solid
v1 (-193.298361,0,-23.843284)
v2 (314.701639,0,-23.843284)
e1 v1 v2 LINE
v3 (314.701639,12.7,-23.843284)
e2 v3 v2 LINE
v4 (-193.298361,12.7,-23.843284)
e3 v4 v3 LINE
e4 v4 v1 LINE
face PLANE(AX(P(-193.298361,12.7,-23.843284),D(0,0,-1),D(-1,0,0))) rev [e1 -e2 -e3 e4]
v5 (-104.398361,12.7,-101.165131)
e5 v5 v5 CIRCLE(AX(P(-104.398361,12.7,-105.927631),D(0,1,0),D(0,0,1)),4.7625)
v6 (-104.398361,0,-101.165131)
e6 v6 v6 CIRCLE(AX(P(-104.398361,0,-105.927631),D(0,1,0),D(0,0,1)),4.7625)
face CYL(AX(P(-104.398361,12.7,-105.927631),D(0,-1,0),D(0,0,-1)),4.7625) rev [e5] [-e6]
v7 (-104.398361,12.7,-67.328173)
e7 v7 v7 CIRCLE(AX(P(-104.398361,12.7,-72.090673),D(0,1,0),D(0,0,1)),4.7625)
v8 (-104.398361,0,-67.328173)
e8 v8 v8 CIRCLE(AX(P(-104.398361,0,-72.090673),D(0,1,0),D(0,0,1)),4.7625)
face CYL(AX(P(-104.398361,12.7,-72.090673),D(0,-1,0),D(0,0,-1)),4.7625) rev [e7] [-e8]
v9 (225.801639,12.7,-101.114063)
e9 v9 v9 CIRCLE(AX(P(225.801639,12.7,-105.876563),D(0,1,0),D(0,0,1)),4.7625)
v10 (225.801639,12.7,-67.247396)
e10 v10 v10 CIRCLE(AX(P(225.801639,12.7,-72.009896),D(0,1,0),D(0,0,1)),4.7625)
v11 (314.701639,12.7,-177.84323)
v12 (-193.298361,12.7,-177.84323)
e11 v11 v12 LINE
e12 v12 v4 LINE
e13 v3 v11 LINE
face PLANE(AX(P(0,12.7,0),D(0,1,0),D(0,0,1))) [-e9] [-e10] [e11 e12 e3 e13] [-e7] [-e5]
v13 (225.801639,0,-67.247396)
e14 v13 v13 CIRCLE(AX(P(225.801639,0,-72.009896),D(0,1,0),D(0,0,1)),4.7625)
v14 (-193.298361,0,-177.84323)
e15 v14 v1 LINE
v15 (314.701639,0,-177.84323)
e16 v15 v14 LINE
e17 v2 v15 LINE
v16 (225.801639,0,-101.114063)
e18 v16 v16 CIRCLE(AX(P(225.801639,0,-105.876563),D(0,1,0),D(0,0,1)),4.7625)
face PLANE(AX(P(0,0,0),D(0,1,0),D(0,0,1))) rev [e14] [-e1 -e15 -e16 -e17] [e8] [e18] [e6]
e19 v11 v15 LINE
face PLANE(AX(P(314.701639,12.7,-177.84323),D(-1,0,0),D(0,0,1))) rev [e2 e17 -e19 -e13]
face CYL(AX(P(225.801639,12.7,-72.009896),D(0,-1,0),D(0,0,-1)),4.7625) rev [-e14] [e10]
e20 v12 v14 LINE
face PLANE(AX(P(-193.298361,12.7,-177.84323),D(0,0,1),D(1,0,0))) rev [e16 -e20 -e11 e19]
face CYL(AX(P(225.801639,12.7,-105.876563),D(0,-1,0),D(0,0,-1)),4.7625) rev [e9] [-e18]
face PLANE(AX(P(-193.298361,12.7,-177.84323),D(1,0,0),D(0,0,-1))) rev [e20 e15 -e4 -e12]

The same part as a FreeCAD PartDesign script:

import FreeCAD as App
import Part
import Sketcher

V = App.Vector
Q = App.Units.Quantity


def add_polygon(sketch, points):
    """Adds a closed chain of lines whose ends are joined by coincident constraints."""
    first, n = sketch.GeometryCount, len(points)
    for a, b in zip(points, points[1:] + points[:1]):
        sketch.addGeometry(Part.LineSegment(App.Vector(*a, 0), App.Vector(*b, 0)), False)
    for i in range(n):
        sketch.addConstraint(Sketcher.Constraint("Coincident", first + i, 2, first + (i + 1) % n, 1))

doc = App.newDocument("Part")
body = doc.addObject("PartDesign::Body", "Body")

sketch1 = body.newObject("Sketcher::SketchObject", "Sketch")
sketch1.AttachmentSupport = (doc.getObject("XZ_Plane"), [""])
sketch1.MapMode = "FlatFace"
add_polygon(sketch1, [(-193.3, -177.8), (-193.3, -23.8), (314.7, -23.8), (314.7, -177.8)])
sketch1.addGeometry(Part.Circle(V(-104.4, -72.1, 0), V(0, 0, 1), 4.8), False)
sketch1.addGeometry(Part.Circle(V(225.8, -72, 0), V(0, 0, 1), 4.8), False)
sketch1.addGeometry(Part.Circle(V(-104.4, -105.9, 0), V(0, 0, 1), 4.8), False)
sketch1.addGeometry(Part.Circle(V(225.8, -105.9, 0), V(0, 0, 1), 4.8), False)
sketch1.addConstraint(Sketcher.Constraint("Vertical", 0))
sketch1.addConstraint(Sketcher.Constraint("Horizontal", 1))
sketch1.addConstraint(Sketcher.Constraint("Vertical", 2))
sketch1.addConstraint(Sketcher.Constraint("Horizontal", 3))
sketch1.addConstraint(Sketcher.Constraint("Equal", 4, 5))
sketch1.addConstraint(Sketcher.Constraint("Equal", 5, 6))
sketch1.addConstraint(Sketcher.Constraint("Equal", 6, 7))
sketch1.addConstraint(Sketcher.Constraint("Vertical", 4, 3, 6, 3))
sketch1.addConstraint(Sketcher.Constraint("Vertical", 5, 3, 7, 3))
sketch1.addConstraint(Sketcher.Constraint("DistanceX", 1, 1, 1, 2, Q("20 in")))
sketch1.addConstraint(Sketcher.Constraint("Diameter", 4, Q("0.375 in")))
sketch1.addConstraint(Sketcher.Constraint("DistanceX", 4, 3, 5, 3, Q("13 in")))
sketch1.addConstraint(Sketcher.Constraint("DistanceX", 0, 2, 4, 3, Q("3.5 in")))
sketch1.addConstraint(Sketcher.Constraint("DistanceY", 2, 2, 6, 3, 71.915599))
sketch1.addConstraint(Sketcher.Constraint("DistanceY", 0, 1, 0, 2, 153.999946))
sketch1.addConstraint(Sketcher.Constraint("DistanceX", 4, 3, -1, 1, 104.398361))
sketch1.addConstraint(Sketcher.Constraint("DistanceY", 6, 3, -1, 1, 105.927631))
sketch1.addConstraint(Sketcher.Constraint("DistanceY", 6, 3, 7, 3, 0.051068))
sketch1.addConstraint(Sketcher.Constraint("DistanceY", 7, 3, 4, 3, 33.78589))
sketch1.addConstraint(Sketcher.Constraint("DistanceY", 5, 3, -1, 1, 72.009896))
pad1 = body.newObject("PartDesign::Pad", "Pad")
pad1.Profile = sketch1
pad1.Length = Q("0.5 in")
pad1.Reversed = True

doc.recompute()
